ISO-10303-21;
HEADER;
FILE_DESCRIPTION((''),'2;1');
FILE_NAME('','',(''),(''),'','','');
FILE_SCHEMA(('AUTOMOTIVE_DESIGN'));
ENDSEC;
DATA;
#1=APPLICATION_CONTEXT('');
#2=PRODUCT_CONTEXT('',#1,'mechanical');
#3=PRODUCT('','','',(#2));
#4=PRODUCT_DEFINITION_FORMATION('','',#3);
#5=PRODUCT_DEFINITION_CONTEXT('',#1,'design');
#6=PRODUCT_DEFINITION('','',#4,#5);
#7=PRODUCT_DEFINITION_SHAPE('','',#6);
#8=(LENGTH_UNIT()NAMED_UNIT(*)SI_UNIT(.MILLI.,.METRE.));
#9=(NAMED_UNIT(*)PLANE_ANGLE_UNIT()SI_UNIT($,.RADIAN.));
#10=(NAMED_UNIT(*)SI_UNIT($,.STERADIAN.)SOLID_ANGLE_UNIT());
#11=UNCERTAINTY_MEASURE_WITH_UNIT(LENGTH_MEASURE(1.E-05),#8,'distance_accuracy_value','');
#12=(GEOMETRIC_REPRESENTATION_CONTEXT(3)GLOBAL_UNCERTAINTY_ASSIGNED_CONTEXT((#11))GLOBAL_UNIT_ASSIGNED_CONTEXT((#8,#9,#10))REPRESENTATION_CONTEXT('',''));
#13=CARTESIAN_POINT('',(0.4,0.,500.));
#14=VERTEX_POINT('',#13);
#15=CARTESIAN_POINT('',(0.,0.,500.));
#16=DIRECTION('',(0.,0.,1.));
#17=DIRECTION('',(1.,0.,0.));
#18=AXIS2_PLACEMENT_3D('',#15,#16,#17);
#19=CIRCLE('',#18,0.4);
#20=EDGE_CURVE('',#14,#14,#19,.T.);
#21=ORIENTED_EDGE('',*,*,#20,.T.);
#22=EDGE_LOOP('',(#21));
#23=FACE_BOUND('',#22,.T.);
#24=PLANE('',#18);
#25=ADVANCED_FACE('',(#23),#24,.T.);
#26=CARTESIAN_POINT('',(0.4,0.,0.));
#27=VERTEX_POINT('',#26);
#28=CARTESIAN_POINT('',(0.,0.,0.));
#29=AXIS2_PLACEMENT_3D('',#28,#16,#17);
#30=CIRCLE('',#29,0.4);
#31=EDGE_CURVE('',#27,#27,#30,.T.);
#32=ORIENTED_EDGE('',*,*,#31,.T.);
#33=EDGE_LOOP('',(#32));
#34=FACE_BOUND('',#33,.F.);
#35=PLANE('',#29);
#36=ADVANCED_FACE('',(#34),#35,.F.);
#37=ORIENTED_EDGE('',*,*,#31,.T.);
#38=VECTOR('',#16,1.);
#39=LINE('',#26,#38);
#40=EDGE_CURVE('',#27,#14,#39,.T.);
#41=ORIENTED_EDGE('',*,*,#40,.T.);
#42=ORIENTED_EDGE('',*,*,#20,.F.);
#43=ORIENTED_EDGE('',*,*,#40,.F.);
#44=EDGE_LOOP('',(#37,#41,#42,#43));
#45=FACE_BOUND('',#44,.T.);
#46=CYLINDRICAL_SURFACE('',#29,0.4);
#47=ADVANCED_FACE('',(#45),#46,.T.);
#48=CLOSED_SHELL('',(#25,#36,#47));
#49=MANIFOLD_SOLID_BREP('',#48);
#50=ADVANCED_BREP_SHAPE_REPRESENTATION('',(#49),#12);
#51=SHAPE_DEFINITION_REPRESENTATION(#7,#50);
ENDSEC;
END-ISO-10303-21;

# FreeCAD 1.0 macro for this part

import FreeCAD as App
import Part
import Sketcher
from FreeCAD import Vector
Q = App.Units.Quantity

doc = App.newDocument("Part")
body = doc.addObject("PartDesign::Body", "Body")

sketch1 = body.newObject("Sketcher::SketchObject", "Sketch")
sketch1.AttachmentSupport = (doc.getObject("XY_Plane"), [""])
sketch1.MapMode = "FlatFace"
sketch1.addGeometry(Part.Circle(Vector(0, 0, 0), Vector(0, 0, 1), 0.4), False)
sketch1.addConstraint([
    Sketcher.Constraint("Coincident", 0, 3, -1, 1),
    Sketcher.Constraint("Diameter", 0, Q("0.8 mm")),
])

sketch2 = body.newObject("Sketcher::SketchObject", "Sketch001")
sketch2.AttachmentSupport = (doc.getObject("XZ_Plane"), [""])
sketch2.MapMode = "FlatFace"
sketch2.addGeometry(Part.LineSegment(Vector(0, 0, 0), Vector(0, 500, 0)), False)
sketch2.addConstraint([
    Sketcher.Constraint("Vertical", 0),
    Sketcher.Constraint("Coincident", 0, 1, -1, 1),
    Sketcher.Constraint("DistanceY", 0, 1, 0, 2, Q("500 mm")),
])
doc.recompute()

additivepipe = body.newObject("PartDesign::AdditivePipe", "AdditivePipe")
additivepipe.Profile = sketch1
additivepipe.Spine = (sketch2, ["Edge1"])

doc.recompute()
